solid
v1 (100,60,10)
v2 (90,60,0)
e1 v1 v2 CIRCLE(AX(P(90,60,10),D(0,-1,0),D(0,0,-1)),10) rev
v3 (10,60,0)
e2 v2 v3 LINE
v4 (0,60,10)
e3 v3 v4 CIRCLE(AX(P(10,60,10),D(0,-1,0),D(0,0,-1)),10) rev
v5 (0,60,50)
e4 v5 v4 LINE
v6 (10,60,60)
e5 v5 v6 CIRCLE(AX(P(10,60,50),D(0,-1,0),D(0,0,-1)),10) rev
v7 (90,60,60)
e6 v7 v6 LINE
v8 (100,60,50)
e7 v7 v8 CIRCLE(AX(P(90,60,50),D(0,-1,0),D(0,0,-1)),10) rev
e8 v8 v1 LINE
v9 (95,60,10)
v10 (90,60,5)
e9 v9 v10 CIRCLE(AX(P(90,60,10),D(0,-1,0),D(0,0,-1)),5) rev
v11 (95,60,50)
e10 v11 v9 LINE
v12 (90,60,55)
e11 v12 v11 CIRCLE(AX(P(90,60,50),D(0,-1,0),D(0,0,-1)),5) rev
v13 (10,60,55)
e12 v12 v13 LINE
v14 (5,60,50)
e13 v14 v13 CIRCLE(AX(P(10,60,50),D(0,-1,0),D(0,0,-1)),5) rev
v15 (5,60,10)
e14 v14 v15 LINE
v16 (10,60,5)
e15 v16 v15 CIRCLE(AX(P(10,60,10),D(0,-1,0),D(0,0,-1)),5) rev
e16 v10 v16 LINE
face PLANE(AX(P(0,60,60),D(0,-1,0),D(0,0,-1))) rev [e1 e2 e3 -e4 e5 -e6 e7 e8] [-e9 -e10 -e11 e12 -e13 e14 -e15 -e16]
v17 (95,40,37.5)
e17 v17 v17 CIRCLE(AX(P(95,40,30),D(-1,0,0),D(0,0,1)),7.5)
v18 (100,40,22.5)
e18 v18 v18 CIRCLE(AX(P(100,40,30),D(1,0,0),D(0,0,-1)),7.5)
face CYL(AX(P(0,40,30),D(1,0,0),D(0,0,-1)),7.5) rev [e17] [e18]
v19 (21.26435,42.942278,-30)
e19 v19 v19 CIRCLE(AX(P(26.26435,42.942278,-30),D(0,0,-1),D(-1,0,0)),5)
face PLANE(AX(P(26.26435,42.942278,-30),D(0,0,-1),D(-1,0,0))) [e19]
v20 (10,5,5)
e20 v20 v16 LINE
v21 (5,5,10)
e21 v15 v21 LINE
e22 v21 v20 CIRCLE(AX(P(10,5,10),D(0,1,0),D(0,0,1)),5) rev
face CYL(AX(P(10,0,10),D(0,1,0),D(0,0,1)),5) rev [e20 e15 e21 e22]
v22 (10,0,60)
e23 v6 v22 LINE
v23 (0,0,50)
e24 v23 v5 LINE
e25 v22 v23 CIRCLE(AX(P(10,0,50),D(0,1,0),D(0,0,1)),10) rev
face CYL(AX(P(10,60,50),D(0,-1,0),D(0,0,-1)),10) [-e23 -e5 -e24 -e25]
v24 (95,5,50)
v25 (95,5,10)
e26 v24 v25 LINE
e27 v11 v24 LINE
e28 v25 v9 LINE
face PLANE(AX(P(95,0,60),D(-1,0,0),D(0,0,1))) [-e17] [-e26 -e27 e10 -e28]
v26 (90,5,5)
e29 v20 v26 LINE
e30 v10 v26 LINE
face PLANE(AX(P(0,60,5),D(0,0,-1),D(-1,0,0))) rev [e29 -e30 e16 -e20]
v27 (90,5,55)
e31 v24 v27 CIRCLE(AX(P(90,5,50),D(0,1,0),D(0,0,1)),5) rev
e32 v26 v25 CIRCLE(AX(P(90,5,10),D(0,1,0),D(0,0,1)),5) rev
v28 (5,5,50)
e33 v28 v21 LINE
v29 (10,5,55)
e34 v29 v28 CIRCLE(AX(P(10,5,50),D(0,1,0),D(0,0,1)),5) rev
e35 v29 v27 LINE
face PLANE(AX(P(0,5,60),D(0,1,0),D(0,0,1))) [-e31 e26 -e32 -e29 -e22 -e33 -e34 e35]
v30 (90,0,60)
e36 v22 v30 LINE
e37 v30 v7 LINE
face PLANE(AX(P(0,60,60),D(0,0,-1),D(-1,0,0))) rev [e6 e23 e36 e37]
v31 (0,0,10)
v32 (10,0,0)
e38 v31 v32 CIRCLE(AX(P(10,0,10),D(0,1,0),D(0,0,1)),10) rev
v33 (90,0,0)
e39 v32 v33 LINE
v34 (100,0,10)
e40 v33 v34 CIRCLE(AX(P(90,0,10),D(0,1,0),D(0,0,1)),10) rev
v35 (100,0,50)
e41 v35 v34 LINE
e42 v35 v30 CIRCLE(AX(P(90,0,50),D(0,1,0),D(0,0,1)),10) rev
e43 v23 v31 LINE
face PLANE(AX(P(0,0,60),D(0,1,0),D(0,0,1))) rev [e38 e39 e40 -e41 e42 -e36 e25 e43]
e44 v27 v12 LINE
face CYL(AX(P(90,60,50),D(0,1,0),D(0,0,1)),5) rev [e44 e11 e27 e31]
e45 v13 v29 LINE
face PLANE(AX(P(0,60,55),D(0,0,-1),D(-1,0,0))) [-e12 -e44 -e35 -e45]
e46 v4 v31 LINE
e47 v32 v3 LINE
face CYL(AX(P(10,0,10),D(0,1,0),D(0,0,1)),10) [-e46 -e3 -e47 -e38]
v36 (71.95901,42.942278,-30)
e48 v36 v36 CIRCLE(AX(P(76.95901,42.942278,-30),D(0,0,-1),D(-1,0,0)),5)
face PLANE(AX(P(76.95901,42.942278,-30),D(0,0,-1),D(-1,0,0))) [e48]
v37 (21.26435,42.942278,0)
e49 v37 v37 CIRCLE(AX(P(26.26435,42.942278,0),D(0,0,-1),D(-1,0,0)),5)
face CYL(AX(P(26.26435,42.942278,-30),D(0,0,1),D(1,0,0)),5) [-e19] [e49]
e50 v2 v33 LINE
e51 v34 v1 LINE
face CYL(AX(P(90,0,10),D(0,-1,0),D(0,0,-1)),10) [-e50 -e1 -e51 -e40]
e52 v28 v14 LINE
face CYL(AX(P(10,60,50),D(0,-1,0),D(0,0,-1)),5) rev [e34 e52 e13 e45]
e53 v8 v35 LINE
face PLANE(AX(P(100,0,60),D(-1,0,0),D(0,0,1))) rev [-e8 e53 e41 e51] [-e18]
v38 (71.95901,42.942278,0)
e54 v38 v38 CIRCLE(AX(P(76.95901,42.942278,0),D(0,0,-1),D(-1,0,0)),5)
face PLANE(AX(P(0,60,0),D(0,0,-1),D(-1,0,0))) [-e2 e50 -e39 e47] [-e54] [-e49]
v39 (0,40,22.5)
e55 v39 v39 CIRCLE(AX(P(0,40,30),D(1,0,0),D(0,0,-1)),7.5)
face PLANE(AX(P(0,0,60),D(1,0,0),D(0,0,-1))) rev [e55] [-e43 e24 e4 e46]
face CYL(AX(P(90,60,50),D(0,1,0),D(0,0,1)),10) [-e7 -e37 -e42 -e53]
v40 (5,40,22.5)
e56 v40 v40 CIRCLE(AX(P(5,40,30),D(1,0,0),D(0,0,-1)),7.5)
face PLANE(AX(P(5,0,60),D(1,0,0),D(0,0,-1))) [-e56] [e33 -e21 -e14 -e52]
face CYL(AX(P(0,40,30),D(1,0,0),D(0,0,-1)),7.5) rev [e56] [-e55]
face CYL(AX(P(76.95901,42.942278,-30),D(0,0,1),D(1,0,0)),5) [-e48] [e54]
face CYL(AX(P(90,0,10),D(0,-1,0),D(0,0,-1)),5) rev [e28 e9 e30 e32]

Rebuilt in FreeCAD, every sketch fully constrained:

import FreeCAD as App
import Part
import Sketcher


def edges_at(feature, points):
    """Names of the edges that pass closest to the given points."""
    edges = feature.Shape.Edges
    near = lambda p: min(range(len(edges)), key=lambda i: edges[i].distToShape(Part.Vertex(*p))[0])
    return sorted({f"Edge{near(p) + 1}" for p in points})


def faces_at(feature, points):
    """Names of the faces that lie closest to the given points."""
    faces = feature.Shape.Faces
    near = lambda p: min(range(len(faces)), key=lambda i: faces[i].distToShape(Part.Vertex(*p))[0])
    return sorted({f"Face{near(p) + 1}" for p in points})

doc = App.newDocument("Part")
body = doc.addObject("PartDesign::Body", "Body")

sketch1 = body.newObject("Sketcher::SketchObject", "Sketch")
sketch1.AttachmentSupport = (doc.getObject("XY_Plane"), [""])
sketch1.MapMode = "FlatFace"
sketch1.addGeometry([
    Part.LineSegment(App.Vector(0, 60, 0), App.Vector(0, 0, 0)),
    Part.LineSegment(App.Vector(0, 0, 0), App.Vector(100, 0, 0)),
    Part.LineSegment(App.Vector(100, 0, 0), App.Vector(100, 60, 0)),
    Part.LineSegment(App.Vector(100, 60, 0), App.Vector(0, 60, 0)),
], False)
sketch1.addConstraint([
    Sketcher.Constraint("Coincident", 0, 2, 1, 1),
    Sketcher.Constraint("Coincident", 1, 2, 2, 1),
    Sketcher.Constraint("Coincident", 2, 2, 3, 1),
    Sketcher.Constraint("Coincident", 3, 2, 0, 1),
    Sketcher.Constraint("Vertical", 0),
    Sketcher.Constraint("Horizontal", 1),
    Sketcher.Constraint("Vertical", 2),
    Sketcher.Constraint("Horizontal", 3),
    Sketcher.Constraint("Coincident", 0, 2, -1, 1),
    Sketcher.Constraint("DistanceX", 1, 1, 1, 2, 100.0),
    Sketcher.Constraint("DistanceY", 0, 2, 0, 1, 60.0),
])
pad1 = body.newObject("PartDesign::Pad", "Pad")
pad1.Profile = sketch1
pad1.Length = 60
doc.recompute()

fillet = body.newObject("PartDesign::Fillet", "Fillet")
fillet.Base = (pad1, edges_at(pad1, [
    (100, 30, 60),
    (0, 30, 60),
    (100, 30, 0),
    (0, 30, 0),
]))
fillet.Radius = 10
doc.recompute()

thickness = body.newObject("PartDesign::Thickness", "Thickness")
thickness.Base = (fillet, faces_at(fillet, [(50, 60, 30)]))
thickness.Value = 5
thickness.Reversed = True
thickness.Join = "Intersection"

sketch2 = body.newObject("Sketcher::SketchObject", "Sketch001")
sketch2.AttachmentSupport = (doc.getObject("YZ_Plane"), [""])
sketch2.MapMode = "FlatFace"
sketch2.AttachmentOffset = App.Placement(App.Vector(0, 0, 100), App.Rotation())
sketch2.addGeometry(Part.Circle(App.Vector(40, 30, 0), App.Vector(0, 0, 1), 8), False)
sketch2.addConstraint([
    Sketcher.Constraint("Diameter", 0, 15.0),
    Sketcher.Constraint("DistanceX", -1, 1, 0, 3, 40.0),
    Sketcher.Constraint("DistanceY", -1, 1, 0, 3, 30.0),
])
pocket1 = body.newObject("PartDesign::Pocket", "Pocket")
pocket1.Profile = sketch2
pocket1.Type = "ThroughAll"

sketch3 = body.newObject("Sketcher::SketchObject", "Sketch002")
sketch3.AttachmentSupport = (doc.getObject("XY_Plane"), [""])
sketch3.MapMode = "FlatFace"
sketch3.addGeometry([
    Part.Circle(App.Vector(77, 43, 0), App.Vector(0, 0, 1), 5),
    Part.Circle(App.Vector(26, 43, 0), App.Vector(0, 0, 1), 5),
], False)
sketch3.addConstraint([
    Sketcher.Constraint("Equal", 0, 1),
    Sketcher.Constraint("Horizontal", 0, 3, 1, 3),
    Sketcher.Constraint("Diameter", 0, 10.0),
    Sketcher.Constraint("DistanceX", -1, 1, 0, 3, 76.95901),
    Sketcher.Constraint("DistanceY", -1, 1, 0, 3, 42.942278),
    Sketcher.Constraint("DistanceX", -1, 1, 1, 3, 26.26435),
])
pad2 = body.newObject("PartDesign::Pad", "Pad001")
pad2.Profile = sketch3
pad2.Length = 30
pad2.Reversed = True

doc.recompute()
